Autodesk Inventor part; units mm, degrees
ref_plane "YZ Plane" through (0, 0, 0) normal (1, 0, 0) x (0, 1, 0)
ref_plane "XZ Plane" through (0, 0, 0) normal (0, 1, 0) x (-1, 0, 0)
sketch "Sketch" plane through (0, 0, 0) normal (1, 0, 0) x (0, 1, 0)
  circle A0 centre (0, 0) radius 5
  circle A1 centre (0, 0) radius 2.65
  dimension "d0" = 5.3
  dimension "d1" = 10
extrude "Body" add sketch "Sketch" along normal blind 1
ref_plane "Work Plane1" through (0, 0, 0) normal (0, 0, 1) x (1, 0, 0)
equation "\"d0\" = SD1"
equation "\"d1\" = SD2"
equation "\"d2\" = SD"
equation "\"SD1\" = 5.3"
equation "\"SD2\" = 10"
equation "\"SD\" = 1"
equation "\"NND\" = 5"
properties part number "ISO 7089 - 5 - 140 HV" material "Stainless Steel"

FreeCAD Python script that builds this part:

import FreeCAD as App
import Part
import Sketcher

doc = App.newDocument("Part")
body = doc.addObject("PartDesign::Body", "Body")

# Sketch on YZ plane
sketch1 = body.newObject("Sketcher::SketchObject", "Sketch")
sketch1.AttachmentSupport = (doc.getObject("YZ_Plane"), [""])
sketch1.MapMode = "FlatFace"
sketch1.addGeometry(Part.Circle(App.Vector(0, 0, 0), App.Vector(0, 0, 1), 5), False)
sketch1.addGeometry(Part.Circle(App.Vector(0, 0, 0), App.Vector(0, 0, 1), 2.6), False)
sketch1.addConstraint(Sketcher.Constraint("Coincident", 0, 3, -1, 1))
sketch1.addConstraint(Sketcher.Constraint("Coincident", 1, 3, -1, 1))
sketch1.addConstraint(Sketcher.Constraint("Diameter", 0, 10.0))
sketch1.addConstraint(Sketcher.Constraint("Diameter", 1, 5.3))
pad1 = body.newObject("PartDesign::Pad", "Pad")
pad1.Profile = sketch1
pad1.Length = 1

doc.recompute()
